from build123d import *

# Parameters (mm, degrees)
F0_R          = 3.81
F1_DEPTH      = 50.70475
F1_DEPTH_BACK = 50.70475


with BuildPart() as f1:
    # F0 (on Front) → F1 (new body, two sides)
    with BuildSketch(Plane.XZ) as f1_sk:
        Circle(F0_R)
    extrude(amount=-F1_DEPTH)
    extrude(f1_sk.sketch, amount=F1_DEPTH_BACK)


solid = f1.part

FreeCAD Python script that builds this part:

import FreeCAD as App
import Part
import Sketcher
from FreeCAD import Vector
Q = App.Units.Quantity

doc = App.newDocument("Part")
body = doc.addObject("PartDesign::Body", "Body")

sketch1 = body.newObject("Sketcher::SketchObject", "Sketch")
sketch1.AttachmentSupport = (doc.getObject("XZ_Plane"), [""])
sketch1.MapMode = "FlatFace"
sketch1.addGeometry(Part.Circle(Vector(0, 0, 0), Vector(0, 0, 1), 3.8), False)
sketch1.addConstraint([
    Sketcher.Constraint("Coincident", 0, 3, -1, 1),
    Sketcher.Constraint("Diameter", 0, Q("0.3 in")),
])
pad1 = body.newObject("PartDesign::Pad", "Pad")
pad1.Profile = sketch1
pad1.Type = "TwoLengths"
pad1.Length = 50.70475
pad1.Length2 = 50.70475
pad1.Reversed = True

doc.recompute()
